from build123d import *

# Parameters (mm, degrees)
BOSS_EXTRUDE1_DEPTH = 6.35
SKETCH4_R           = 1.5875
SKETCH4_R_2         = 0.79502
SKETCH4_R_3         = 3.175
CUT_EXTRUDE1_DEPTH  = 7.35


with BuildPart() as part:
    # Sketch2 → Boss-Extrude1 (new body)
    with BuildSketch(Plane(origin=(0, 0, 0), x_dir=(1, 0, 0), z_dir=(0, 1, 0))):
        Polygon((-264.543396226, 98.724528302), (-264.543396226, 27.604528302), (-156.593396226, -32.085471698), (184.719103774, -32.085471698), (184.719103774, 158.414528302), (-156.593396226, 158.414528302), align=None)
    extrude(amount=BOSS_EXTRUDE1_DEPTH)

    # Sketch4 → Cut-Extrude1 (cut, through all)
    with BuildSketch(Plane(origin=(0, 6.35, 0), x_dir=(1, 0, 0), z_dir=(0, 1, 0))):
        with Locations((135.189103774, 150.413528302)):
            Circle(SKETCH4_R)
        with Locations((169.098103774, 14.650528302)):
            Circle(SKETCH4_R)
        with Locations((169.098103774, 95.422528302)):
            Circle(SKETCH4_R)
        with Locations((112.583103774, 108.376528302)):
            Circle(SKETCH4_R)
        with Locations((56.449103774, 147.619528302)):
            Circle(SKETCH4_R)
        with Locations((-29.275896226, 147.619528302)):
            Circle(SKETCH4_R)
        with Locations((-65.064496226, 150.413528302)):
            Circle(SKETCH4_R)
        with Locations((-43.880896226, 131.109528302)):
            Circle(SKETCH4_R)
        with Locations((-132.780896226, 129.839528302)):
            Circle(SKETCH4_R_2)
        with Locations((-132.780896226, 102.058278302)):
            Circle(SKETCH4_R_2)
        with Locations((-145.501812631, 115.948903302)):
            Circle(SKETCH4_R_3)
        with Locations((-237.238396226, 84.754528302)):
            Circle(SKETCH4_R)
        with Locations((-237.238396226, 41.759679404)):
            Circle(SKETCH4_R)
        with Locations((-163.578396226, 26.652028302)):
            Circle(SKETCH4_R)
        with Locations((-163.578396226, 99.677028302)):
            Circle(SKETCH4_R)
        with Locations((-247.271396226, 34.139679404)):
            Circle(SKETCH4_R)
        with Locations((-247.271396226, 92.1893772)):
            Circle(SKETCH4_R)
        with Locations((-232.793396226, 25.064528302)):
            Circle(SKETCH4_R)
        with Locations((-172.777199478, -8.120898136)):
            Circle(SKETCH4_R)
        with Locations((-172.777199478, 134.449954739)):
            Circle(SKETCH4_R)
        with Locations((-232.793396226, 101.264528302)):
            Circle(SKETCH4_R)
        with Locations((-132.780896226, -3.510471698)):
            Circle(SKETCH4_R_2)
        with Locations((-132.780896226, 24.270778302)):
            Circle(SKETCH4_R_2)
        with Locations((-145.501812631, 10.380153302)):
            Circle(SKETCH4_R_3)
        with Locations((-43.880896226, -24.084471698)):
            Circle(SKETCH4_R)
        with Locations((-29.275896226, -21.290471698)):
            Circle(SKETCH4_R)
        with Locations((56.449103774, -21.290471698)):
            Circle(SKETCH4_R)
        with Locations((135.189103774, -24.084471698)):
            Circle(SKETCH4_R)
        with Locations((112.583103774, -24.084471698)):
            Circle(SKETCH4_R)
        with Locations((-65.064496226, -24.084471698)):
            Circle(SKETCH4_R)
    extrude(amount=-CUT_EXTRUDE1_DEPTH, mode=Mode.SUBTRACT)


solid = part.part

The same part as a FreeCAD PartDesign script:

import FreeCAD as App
import Part
import Sketcher
from FreeCAD import Vector
Q = App.Units.Quantity

doc = App.newDocument("Part")
body = doc.addObject("PartDesign::Body", "Body")

# Sketch on XZ plane
sketch1 = body.newObject("Sketcher::SketchObject", "Sketch")
sketch1.AttachmentSupport = (doc.getObject("XZ_Plane"), [""])
sketch1.MapMode = "FlatFace"
sketch1.addGeometry(Part.LineSegment(Vector(-265, -99, 0), Vector(-265, -28, 0)), False)
sketch1.addGeometry(Part.LineSegment(Vector(-265, -28, 0), Vector(-157, 32, 0)), False)
sketch1.addGeometry(Part.LineSegment(Vector(-157, 32, 0), Vector(185, 32, 0)), False)
sketch1.addGeometry(Part.LineSegment(Vector(185, 32, 0), Vector(185, -158, 0)), False)
sketch1.addGeometry(Part.LineSegment(Vector(185, -158, 0), Vector(-157, -158, 0)), False)
sketch1.addGeometry(Part.LineSegment(Vector(-157, -158, 0), Vector(-265, -99, 0)), False)
sketch1.addConstraint(Sketcher.Constraint("Coincident", 0, 2, 1, 1))
sketch1.addConstraint(Sketcher.Constraint("Coincident", 1, 2, 2, 1))
sketch1.addConstraint(Sketcher.Constraint("Coincident", 2, 2, 3, 1))
sketch1.addConstraint(Sketcher.Constraint("Coincident", 3, 2, 4, 1))
sketch1.addConstraint(Sketcher.Constraint("Coincident", 4, 2, 5, 1))
sketch1.addConstraint(Sketcher.Constraint("Coincident", 5, 2, 0, 1))
sketch1.addConstraint(Sketcher.Constraint("Vertical", 0))
sketch1.addConstraint(Sketcher.Constraint("Horizontal", 2))
sketch1.addConstraint(Sketcher.Constraint("Vertical", 3))
sketch1.addConstraint(Sketcher.Constraint("Horizontal", 4))
sketch1.addConstraint(Sketcher.Constraint("Vertical", 1, 2, 4, 2))
sketch1.addConstraint(Sketcher.Constraint("Equal", 1, 5))
sketch1.addConstraint(Sketcher.Constraint("DistanceY", 0, 1, 0, 2, Q("2.8 in")))
sketch1.addConstraint(Sketcher.Constraint("DistanceY", 3, 2, 3, 1, Q("7.5 in")))
sketch1.addConstraint(Sketcher.Constraint("DistanceX", 2, 1, 2, 2, Q("13.4375 in")))
sketch1.addConstraint(Sketcher.Constraint("Angle", 1, Q("28.940013 deg")))
sketch1.addConstraint(Sketcher.Constraint("DistanceY", 0, 2, -1, 1, Q("27.604528 mm")))
sketch1.addConstraint(Sketcher.Constraint("DistanceX", 0, 2, -1, 1, Q("264.543396 mm")))
pad1 = body.newObject("PartDesign::Pad", "Pad")
pad1.Profile = sketch1
pad1.Length = Q("0.25 in")
pad1.Reversed = True

# Sketch on XZ plane
sketch2 = body.newObject("Sketcher::SketchObject", "Sketch001")
sketch2.AttachmentSupport = (doc.getObject("XZ_Plane"), [""])
sketch2.MapMode = "FlatFace"
sketch2.AttachmentOffset = App.Placement(Vector(0, 0, -0.25 * 25.4), App.Rotation())
sketch2.addGeometry(Part.Circle(Vector(135.2, -150.4, 0), Vector(0, 0, 1), 1.6), False)
sketch2.addGeometry(Part.Circle(Vector(169.1, -14.7, 0), Vector(0, 0, 1), 1.6), False)
sketch2.addGeometry(Part.Circle(Vector(169.1, -95.4, 0), Vector(0, 0, 1), 1.6), False)
sketch2.addGeometry(Part.Circle(Vector(112.6, -108.4, 0), Vector(0, 0, 1), 1.6), False)
sketch2.addGeometry(Part.Circle(Vector(56.4, -147.6, 0), Vector(0, 0, 1), 1.6), False)
sketch2.addGeometry(Part.Circle(Vector(-29.3, -147.6, 0), Vector(0, 0, 1), 1.6), False)
sketch2.addGeometry(Part.Circle(Vector(-65.1, -150.4, 0), Vector(0, 0, 1), 1.6), False)
sketch2.addGeometry(Part.Circle(Vector(-43.9, -131.1, 0), Vector(0, 0, 1), 1.6), False)
sketch2.addGeometry(Part.Circle(Vector(-132.8, -129.8, 0), Vector(0, 0, 1), 0.8), False)
sketch2.addGeometry(Part.Circle(Vector(-132.8, -102.1, 0), Vector(0, 0, 1), 0.8), False)
sketch2.addGeometry(Part.Circle(Vector(-145.5, -115.9, 0), Vector(0, 0, 1), 3.2), False)
sketch2.addGeometry(Part.Circle(Vector(-237.2, -84.8, 0), Vector(0, 0, 1), 1.6), False)
sketch2.addGeometry(Part.Circle(Vector(-237.2, -41.8, 0), Vector(0, 0, 1), 1.6), False)
sketch2.addGeometry(Part.Circle(Vector(-163.6, -26.7, 0), Vector(0, 0, 1), 1.6), False)
sketch2.addGeometry(Part.Circle(Vector(-163.6, -99.7, 0), Vector(0, 0, 1), 1.6), False)
sketch2.addGeometry(Part.Circle(Vector(-247.3, -34.1, 0), Vector(0, 0, 1), 1.6), False)
sketch2.addGeometry(Part.Circle(Vector(-247.3, -92.2, 0), Vector(0, 0, 1), 1.6), False)
sketch2.addGeometry(Part.Circle(Vector(-232.8, -25.1, 0), Vector(0, 0, 1), 1.6), False)
sketch2.addGeometry(Part.Circle(Vector(-172.8, 8.1, 0), Vector(0, 0, 1), 1.6), False)
sketch2.addGeometry(Part.Circle(Vector(-172.8, -134.4, 0), Vector(0, 0, 1), 1.6), False)
sketch2.addGeometry(Part.Circle(Vector(-232.8, -101.3, 0), Vector(0, 0, 1), 1.6), False)
sketch2.addGeometry(Part.Circle(Vector(-132.8, 3.5, 0), Vector(0, 0, 1), 0.8), False)
sketch2.addGeometry(Part.Circle(Vector(-132.8, -24.3, 0), Vector(0, 0, 1), 0.8), False)
sketch2.addGeometry(Part.Circle(Vector(-145.5, -10.4, 0), Vector(0, 0, 1), 3.2), False)
sketch2.addGeometry(Part.Circle(Vector(-43.9, 24.1, 0), Vector(0, 0, 1), 1.6), False)
sketch2.addGeometry(Part.Circle(Vector(-29.3, 21.3, 0), Vector(0, 0, 1), 1.6), False)
sketch2.addGeometry(Part.Circle(Vector(56.4, 21.3, 0), Vector(0, 0, 1), 1.6), False)
sketch2.addGeometry(Part.Circle(Vector(135.2, 24.1, 0), Vector(0, 0, 1), 1.6), False)
sketch2.addGeometry(Part.Circle(Vector(112.6, 24.1, 0), Vector(0, 0, 1), 1.6), False)
sketch2.addGeometry(Part.Circle(Vector(-65.1, 24.1, 0), Vector(0, 0, 1), 1.6), False)
sketch2.addConstraint(Sketcher.Constraint("Equal", 0, 1))
sketch2.addConstraint(Sketcher.Constraint("Equal", 1, 2))
sketch2.addConstraint(Sketcher.Constraint("Equal", 2, 3))
sketch2.addConstraint(Sketcher.Constraint("Equal", 3, 4))
sketch2.addConstraint(Sketcher.Constraint("Equal", 4, 5))
sketch2.addConstraint(Sketcher.Constraint("Equal", 5, 6))
sketch2.addConstraint(Sketcher.Constraint("Equal", 6, 7))
sketch2.addConstraint(Sketcher.Constraint("Equal", 8, 9))
sketch2.addConstraint(Sketcher.Constraint("Equal", 7, 11))
sketch2.addConstraint(Sketcher.Constraint("Equal", 11, 12))
sketch2.addConstraint(Sketcher.Constraint("Equal", 12, 13))
sketch2.addConstraint(Sketcher.Constraint("Equal", 13, 14))
sketch2.addConstraint(Sketcher.Constraint("Equal", 14, 15))
sketch2.addConstraint(Sketcher.Constraint("Equal", 15, 16))
sketch2.addConstraint(Sketcher.Constraint("Equal", 16, 17))
sketch2.addConstraint(Sketcher.Constraint("Equal", 17, 18))
sketch2.addConstraint(Sketcher.Constraint("Equal", 18, 19))
sketch2.addConstraint(Sketcher.Constraint("Equal", 19, 20))
sketch2.addConstraint(Sketcher.Constraint("Equal", 9, 21))
sketch2.addConstraint(Sketcher.Constraint("Equal", 21, 22))
sketch2.addConstraint(Sketcher.Constraint("Equal", 10, 23))
sketch2.addConstraint(Sketcher.Constraint("Equal", 20, 24))
sketch2.addConstraint(Sketcher.Constraint("Equal", 24, 25))
sketch2.addConstraint(Sketcher.Constraint("Equal", 25, 26))
sketch2.addConstraint(Sketcher.Constraint("Equal", 26, 27))
sketch2.addConstraint(Sketcher.Constraint("Equal", 27, 28))
sketch2.addConstraint(Sketcher.Constraint("Equal", 28, 29))
sketch2.addConstraint(Sketcher.Constraint("Horizontal", 4, 3, 5, 3))
sketch2.addConstraint(Sketcher.Constraint("Horizontal", 0, 3, 6, 3))
sketch2.addConstraint(Sketcher.Constraint("Horizontal", 25, 3, 26, 3))
sketch2.addConstraint(Sketcher.Constraint("Horizontal", 24, 3, 27, 3))
sketch2.addConstraint(Sketcher.Constraint("Horizontal", 27, 3, 28, 3))
sketch2.addConstraint(Sketcher.Constraint("Horizontal", 28, 3, 29, 3))
sketch2.addConstraint(Sketcher.Constraint("Vertical", 1, 3, 2, 3))
sketch2.addConstraint(Sketcher.Constraint("Vertical", 8, 3, 9, 3))
sketch2.addConstraint(Sketcher.Constraint("Vertical", 11, 3, 12, 3))
sketch2.addConstraint(Sketcher.Constraint("Vertical", 13, 3, 14, 3))
sketch2.addConstraint(Sketcher.Constraint("Vertical", 15, 3, 16, 3))
sketch2.addConstraint(Sketcher.Constraint("Vertical", 18, 3, 19, 3))
sketch2.addConstraint(Sketcher.Constraint("Vertical", 17, 3, 20, 3))
sketch2.addConstraint(Sketcher.Constraint("Vertical", 9, 3, 21, 3))
sketch2.addConstraint(Sketcher.Constraint("Vertical", 21, 3, 22, 3))
sketch2.addConstraint(Sketcher.Constraint("Vertical", 10, 3, 23, 3))
sketch2.addConstraint(Sketcher.Constraint("Vertical", 7, 3, 24, 3))
sketch2.addConstraint(Sketcher.Constraint("Vertical", 5, 3, 25, 3))
sketch2.addConstraint(Sketcher.Constraint("Vertical", 4, 3, 26, 3))
sketch2.addConstraint(Sketcher.Constraint("Vertical", 0, 3, 27, 3))
sketch2.addConstraint(Sketcher.Constraint("Vertical", 3, 3, 28, 3))
sketch2.addConstraint(Sketcher.Constraint("Vertical", 6, 3, 29, 3))
sketch2.addConstraint(Sketcher.Constraint("Diameter", 10, Q("0.25 in")))
sketch2.addConstraint(Sketcher.Constraint("Diameter", 0, Q("0.125 in")))
sketch2.addConstraint(Sketcher.Constraint("Diameter", 8, Q("0.0626 in")))
sketch2.addConstraint(Sketcher.Constraint("DistanceX", 4, 3, 0, 3, Q("3.1 in")))
sketch2.addConstraint(Sketcher.Constraint("DistanceX", 8, 3, 7, 3, Q("3.5 in")))
sketch2.addConstraint(Sketcher.Constraint("DistanceY", 5, 3, 8, 3, Q("0.7 in")))
sketch2.addConstraint(Sketcher.Constraint("DistanceX", 12, 3, 13, 3, Q("2.9 in")))
sketch2.addConstraint(Sketcher.Constraint("DistanceY", 12, 3, 15, 3, Q("0.3 in")))
sketch2.addConstraint(Sketcher.Constraint("DistanceY", 21, 3, 25, 3, Q("0.7 in")))
sketch2.addConstraint(Sketcher.Constraint("DistanceY", 2, 3, 1, 3, Q("3.18 in")))
sketch2.addConstraint(Sketcher.Constraint("DistanceX", 3, 3, 0, 3, Q("0.89 in")))
sketch2.addConstraint(Sketcher.Constraint("DistanceY", 3, 3, 2, 3, Q("0.51 in")))
sketch2.addConstraint(Sketcher.Constraint("DistanceY", 0, 3, 4, 3, Q("0.11 in")))
sketch2.addConstraint(Sketcher.Constraint("DistanceX", 5, 3, 2, 3, Q("7.81 in")))
sketch2.addConstraint(Sketcher.Constraint("DistanceY", 5, 3, 7, 3, Q("0.65 in")))
sketch2.addConstraint(Sketcher.Constraint("DistanceX", 7, 3, 4, 3, Q("3.95 in")))
sketch2.addConstraint(Sketcher.Constraint("DistanceX", 15, 3, 17, 3, Q("0.57 in")))
sketch2.addConstraint(Sketcher.Constraint("DistanceY", 11, 3, 17, 3, Q("2.35 in")))
sketch2.addConstraint(Sketcher.Constraint("DistanceY", 20, 3, 11, 3, Q("0.65 in")))
sketch2.addConstraint(Sketcher.Constraint("DistanceY", 21, 3, 24, 3, Q("0.81 in")))
sketch2.addConstraint(Sketcher.Constraint("DistanceX", 0, 3, 1, 3, Q("1.335 in")))
sketch2.addConstraint(Sketcher.Constraint("DistanceY", 0, 3, 1, 3, Q("5.345 in")))
sketch2.addConstraint(Sketcher.Constraint("DistanceX", 6, 3, 5, 3, Q("1.409 in")))
sketch2.addConstraint(Sketcher.Constraint("DistanceY", 8, 3, 9, 3, Q("1.09375 in")))
sketch2.addConstraint(Sketcher.Constraint("DistanceY", 8, 3, 10, 3, Q("0.546875 in")))
sketch2.addConstraint(Sketcher.Constraint("DistanceY", 8, 3, 11, 3, Q("1.775 in")))
sketch2.addConstraint(Sketcher.Constraint("DistanceY", 9, 3, 13, 3, Q("2.96875 in")))
sketch2.addConstraint(Sketcher.Constraint("DistanceY", 10, 3, 14, 3, Q("0.640625 in")))
sketch2.addConstraint(Sketcher.Constraint("DistanceX", 15, 3, 12, 3, Q("0.395 in")))
sketch2.addConstraint(Sketcher.Constraint("DistanceY", 13, 3, 21, 3, Q("1.1875 in")))
sketch2.addConstraint(Sketcher.Constraint("DistanceX", 17, 3, 21, 3, Q("3.9375 in")))
sketch2.addConstraint(Sketcher.Constraint("DistanceY", 22, 3, 21, 3, Q("1.09375 in")))
sketch2.addConstraint(Sketcher.Constraint("DistanceY", 23, 3, 21, 3, Q("0.546875 in")))
sketch2.addConstraint(Sketcher.Constraint("DistanceX", 18, 3, -1, 1, Q("172.777199 mm")))
sketch2.addConstraint(Sketcher.Constraint("DistanceY", -1, 1, 18, 3, Q("8.120898 mm")))
sketch2.addConstraint(Sketcher.Constraint("DistanceY", 9, 3, 12, 3, Q("60.298599 mm")))
sketch2.addConstraint(Sketcher.Constraint("DistanceY", 0, 3, -1, 1, Q("150.413528 mm")))
sketch2.addConstraint(Sketcher.Constraint("DistanceY", 16, 3, 11, 3, Q("7.434849 mm")))
sketch2.addConstraint(Sketcher.Constraint("DistanceY", 19, 3, 10, 3, Q("18.501051 mm")))
sketch2.addConstraint(Sketcher.Constraint("DistanceX", -1, 1, 0, 3, Q("135.189104 mm")))
sketch2.addConstraint(Sketcher.Constraint("DistanceX", 10, 3, -1, 1, Q("145.501813 mm")))
pocket1 = body.newObject("PartDesign::Pocket", "Pocket")
pocket1.Profile = sketch2
pocket1.Type = "ThroughAll"
pocket1.Reversed = True

doc.recompute()
